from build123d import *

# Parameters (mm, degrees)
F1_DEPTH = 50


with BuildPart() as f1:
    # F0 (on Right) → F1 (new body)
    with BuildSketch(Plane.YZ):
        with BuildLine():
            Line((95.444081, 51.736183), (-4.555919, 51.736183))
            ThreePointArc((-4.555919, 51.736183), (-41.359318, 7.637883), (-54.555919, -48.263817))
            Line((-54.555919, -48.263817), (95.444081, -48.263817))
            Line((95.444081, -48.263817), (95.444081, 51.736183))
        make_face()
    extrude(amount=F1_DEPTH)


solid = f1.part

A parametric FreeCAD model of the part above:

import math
import FreeCAD as App
import Part
import Sketcher
from FreeCAD import Vector

doc = App.newDocument("Part")
body = doc.addObject("PartDesign::Body", "Body")

# Sketch on YZ plane
sketch1 = body.newObject("Sketcher::SketchObject", "Sketch")
sketch1.AttachmentSupport = (doc.getObject("YZ_Plane"), [""])
sketch1.MapMode = "FlatFace"
sketch1.addGeometry(Part.LineSegment(Vector(95.444081, 51.736183, 0), Vector(-4.555919, 51.736183, 0)), False)
sketch1.addGeometry(Part.ArcOfCircle(Part.Circle(Vector(70.444078, -48.263815, 0), Vector(0, 0, 1), 124.999997), math.radians(126.869897), math.radians(180.000001)), False)
sketch1.addGeometry(Part.LineSegment(Vector(-54.555919, -48.263817, 0), Vector(95.444081, -48.263817, 0)), False)
sketch1.addGeometry(Part.LineSegment(Vector(95.444081, -48.263817, 0), Vector(95.444081, 51.736183, 0)), False)
sketch1.addConstraint(Sketcher.Constraint("Coincident", 0, 2, 1, 1))
sketch1.addConstraint(Sketcher.Constraint("Coincident", 1, 2, 2, 1))
sketch1.addConstraint(Sketcher.Constraint("Coincident", 2, 2, 3, 1))
sketch1.addConstraint(Sketcher.Constraint("Coincident", 3, 2, 0, 1))
sketch1.addConstraint(Sketcher.Constraint("Horizontal", 0))
sketch1.addConstraint(Sketcher.Constraint("Horizontal", 2))
sketch1.addConstraint(Sketcher.Constraint("Vertical", 3))
sketch1.addConstraint(Sketcher.Constraint("Equal", 0, 3))
sketch1.addConstraint(Sketcher.Constraint("DistanceX", 0, 2, 0, 1, 100.0))
sketch1.addConstraint(Sketcher.Constraint("DistanceX", 2, 1, 2, 2, 150.0))
sketch1.addConstraint(Sketcher.Constraint("DistanceY", 1, 3, 0, 2, 99.999998))
sketch1.addConstraint(Sketcher.Constraint("DistanceX", 0, 2, -1, 1, 4.555919))
sketch1.addConstraint(Sketcher.Constraint("DistanceY", 1, 3, -1, 1, 48.263815))
pad1 = body.newObject("PartDesign::Pad", "Pad")
pad1.Profile = sketch1
pad1.Length = 50

doc.recompute()
